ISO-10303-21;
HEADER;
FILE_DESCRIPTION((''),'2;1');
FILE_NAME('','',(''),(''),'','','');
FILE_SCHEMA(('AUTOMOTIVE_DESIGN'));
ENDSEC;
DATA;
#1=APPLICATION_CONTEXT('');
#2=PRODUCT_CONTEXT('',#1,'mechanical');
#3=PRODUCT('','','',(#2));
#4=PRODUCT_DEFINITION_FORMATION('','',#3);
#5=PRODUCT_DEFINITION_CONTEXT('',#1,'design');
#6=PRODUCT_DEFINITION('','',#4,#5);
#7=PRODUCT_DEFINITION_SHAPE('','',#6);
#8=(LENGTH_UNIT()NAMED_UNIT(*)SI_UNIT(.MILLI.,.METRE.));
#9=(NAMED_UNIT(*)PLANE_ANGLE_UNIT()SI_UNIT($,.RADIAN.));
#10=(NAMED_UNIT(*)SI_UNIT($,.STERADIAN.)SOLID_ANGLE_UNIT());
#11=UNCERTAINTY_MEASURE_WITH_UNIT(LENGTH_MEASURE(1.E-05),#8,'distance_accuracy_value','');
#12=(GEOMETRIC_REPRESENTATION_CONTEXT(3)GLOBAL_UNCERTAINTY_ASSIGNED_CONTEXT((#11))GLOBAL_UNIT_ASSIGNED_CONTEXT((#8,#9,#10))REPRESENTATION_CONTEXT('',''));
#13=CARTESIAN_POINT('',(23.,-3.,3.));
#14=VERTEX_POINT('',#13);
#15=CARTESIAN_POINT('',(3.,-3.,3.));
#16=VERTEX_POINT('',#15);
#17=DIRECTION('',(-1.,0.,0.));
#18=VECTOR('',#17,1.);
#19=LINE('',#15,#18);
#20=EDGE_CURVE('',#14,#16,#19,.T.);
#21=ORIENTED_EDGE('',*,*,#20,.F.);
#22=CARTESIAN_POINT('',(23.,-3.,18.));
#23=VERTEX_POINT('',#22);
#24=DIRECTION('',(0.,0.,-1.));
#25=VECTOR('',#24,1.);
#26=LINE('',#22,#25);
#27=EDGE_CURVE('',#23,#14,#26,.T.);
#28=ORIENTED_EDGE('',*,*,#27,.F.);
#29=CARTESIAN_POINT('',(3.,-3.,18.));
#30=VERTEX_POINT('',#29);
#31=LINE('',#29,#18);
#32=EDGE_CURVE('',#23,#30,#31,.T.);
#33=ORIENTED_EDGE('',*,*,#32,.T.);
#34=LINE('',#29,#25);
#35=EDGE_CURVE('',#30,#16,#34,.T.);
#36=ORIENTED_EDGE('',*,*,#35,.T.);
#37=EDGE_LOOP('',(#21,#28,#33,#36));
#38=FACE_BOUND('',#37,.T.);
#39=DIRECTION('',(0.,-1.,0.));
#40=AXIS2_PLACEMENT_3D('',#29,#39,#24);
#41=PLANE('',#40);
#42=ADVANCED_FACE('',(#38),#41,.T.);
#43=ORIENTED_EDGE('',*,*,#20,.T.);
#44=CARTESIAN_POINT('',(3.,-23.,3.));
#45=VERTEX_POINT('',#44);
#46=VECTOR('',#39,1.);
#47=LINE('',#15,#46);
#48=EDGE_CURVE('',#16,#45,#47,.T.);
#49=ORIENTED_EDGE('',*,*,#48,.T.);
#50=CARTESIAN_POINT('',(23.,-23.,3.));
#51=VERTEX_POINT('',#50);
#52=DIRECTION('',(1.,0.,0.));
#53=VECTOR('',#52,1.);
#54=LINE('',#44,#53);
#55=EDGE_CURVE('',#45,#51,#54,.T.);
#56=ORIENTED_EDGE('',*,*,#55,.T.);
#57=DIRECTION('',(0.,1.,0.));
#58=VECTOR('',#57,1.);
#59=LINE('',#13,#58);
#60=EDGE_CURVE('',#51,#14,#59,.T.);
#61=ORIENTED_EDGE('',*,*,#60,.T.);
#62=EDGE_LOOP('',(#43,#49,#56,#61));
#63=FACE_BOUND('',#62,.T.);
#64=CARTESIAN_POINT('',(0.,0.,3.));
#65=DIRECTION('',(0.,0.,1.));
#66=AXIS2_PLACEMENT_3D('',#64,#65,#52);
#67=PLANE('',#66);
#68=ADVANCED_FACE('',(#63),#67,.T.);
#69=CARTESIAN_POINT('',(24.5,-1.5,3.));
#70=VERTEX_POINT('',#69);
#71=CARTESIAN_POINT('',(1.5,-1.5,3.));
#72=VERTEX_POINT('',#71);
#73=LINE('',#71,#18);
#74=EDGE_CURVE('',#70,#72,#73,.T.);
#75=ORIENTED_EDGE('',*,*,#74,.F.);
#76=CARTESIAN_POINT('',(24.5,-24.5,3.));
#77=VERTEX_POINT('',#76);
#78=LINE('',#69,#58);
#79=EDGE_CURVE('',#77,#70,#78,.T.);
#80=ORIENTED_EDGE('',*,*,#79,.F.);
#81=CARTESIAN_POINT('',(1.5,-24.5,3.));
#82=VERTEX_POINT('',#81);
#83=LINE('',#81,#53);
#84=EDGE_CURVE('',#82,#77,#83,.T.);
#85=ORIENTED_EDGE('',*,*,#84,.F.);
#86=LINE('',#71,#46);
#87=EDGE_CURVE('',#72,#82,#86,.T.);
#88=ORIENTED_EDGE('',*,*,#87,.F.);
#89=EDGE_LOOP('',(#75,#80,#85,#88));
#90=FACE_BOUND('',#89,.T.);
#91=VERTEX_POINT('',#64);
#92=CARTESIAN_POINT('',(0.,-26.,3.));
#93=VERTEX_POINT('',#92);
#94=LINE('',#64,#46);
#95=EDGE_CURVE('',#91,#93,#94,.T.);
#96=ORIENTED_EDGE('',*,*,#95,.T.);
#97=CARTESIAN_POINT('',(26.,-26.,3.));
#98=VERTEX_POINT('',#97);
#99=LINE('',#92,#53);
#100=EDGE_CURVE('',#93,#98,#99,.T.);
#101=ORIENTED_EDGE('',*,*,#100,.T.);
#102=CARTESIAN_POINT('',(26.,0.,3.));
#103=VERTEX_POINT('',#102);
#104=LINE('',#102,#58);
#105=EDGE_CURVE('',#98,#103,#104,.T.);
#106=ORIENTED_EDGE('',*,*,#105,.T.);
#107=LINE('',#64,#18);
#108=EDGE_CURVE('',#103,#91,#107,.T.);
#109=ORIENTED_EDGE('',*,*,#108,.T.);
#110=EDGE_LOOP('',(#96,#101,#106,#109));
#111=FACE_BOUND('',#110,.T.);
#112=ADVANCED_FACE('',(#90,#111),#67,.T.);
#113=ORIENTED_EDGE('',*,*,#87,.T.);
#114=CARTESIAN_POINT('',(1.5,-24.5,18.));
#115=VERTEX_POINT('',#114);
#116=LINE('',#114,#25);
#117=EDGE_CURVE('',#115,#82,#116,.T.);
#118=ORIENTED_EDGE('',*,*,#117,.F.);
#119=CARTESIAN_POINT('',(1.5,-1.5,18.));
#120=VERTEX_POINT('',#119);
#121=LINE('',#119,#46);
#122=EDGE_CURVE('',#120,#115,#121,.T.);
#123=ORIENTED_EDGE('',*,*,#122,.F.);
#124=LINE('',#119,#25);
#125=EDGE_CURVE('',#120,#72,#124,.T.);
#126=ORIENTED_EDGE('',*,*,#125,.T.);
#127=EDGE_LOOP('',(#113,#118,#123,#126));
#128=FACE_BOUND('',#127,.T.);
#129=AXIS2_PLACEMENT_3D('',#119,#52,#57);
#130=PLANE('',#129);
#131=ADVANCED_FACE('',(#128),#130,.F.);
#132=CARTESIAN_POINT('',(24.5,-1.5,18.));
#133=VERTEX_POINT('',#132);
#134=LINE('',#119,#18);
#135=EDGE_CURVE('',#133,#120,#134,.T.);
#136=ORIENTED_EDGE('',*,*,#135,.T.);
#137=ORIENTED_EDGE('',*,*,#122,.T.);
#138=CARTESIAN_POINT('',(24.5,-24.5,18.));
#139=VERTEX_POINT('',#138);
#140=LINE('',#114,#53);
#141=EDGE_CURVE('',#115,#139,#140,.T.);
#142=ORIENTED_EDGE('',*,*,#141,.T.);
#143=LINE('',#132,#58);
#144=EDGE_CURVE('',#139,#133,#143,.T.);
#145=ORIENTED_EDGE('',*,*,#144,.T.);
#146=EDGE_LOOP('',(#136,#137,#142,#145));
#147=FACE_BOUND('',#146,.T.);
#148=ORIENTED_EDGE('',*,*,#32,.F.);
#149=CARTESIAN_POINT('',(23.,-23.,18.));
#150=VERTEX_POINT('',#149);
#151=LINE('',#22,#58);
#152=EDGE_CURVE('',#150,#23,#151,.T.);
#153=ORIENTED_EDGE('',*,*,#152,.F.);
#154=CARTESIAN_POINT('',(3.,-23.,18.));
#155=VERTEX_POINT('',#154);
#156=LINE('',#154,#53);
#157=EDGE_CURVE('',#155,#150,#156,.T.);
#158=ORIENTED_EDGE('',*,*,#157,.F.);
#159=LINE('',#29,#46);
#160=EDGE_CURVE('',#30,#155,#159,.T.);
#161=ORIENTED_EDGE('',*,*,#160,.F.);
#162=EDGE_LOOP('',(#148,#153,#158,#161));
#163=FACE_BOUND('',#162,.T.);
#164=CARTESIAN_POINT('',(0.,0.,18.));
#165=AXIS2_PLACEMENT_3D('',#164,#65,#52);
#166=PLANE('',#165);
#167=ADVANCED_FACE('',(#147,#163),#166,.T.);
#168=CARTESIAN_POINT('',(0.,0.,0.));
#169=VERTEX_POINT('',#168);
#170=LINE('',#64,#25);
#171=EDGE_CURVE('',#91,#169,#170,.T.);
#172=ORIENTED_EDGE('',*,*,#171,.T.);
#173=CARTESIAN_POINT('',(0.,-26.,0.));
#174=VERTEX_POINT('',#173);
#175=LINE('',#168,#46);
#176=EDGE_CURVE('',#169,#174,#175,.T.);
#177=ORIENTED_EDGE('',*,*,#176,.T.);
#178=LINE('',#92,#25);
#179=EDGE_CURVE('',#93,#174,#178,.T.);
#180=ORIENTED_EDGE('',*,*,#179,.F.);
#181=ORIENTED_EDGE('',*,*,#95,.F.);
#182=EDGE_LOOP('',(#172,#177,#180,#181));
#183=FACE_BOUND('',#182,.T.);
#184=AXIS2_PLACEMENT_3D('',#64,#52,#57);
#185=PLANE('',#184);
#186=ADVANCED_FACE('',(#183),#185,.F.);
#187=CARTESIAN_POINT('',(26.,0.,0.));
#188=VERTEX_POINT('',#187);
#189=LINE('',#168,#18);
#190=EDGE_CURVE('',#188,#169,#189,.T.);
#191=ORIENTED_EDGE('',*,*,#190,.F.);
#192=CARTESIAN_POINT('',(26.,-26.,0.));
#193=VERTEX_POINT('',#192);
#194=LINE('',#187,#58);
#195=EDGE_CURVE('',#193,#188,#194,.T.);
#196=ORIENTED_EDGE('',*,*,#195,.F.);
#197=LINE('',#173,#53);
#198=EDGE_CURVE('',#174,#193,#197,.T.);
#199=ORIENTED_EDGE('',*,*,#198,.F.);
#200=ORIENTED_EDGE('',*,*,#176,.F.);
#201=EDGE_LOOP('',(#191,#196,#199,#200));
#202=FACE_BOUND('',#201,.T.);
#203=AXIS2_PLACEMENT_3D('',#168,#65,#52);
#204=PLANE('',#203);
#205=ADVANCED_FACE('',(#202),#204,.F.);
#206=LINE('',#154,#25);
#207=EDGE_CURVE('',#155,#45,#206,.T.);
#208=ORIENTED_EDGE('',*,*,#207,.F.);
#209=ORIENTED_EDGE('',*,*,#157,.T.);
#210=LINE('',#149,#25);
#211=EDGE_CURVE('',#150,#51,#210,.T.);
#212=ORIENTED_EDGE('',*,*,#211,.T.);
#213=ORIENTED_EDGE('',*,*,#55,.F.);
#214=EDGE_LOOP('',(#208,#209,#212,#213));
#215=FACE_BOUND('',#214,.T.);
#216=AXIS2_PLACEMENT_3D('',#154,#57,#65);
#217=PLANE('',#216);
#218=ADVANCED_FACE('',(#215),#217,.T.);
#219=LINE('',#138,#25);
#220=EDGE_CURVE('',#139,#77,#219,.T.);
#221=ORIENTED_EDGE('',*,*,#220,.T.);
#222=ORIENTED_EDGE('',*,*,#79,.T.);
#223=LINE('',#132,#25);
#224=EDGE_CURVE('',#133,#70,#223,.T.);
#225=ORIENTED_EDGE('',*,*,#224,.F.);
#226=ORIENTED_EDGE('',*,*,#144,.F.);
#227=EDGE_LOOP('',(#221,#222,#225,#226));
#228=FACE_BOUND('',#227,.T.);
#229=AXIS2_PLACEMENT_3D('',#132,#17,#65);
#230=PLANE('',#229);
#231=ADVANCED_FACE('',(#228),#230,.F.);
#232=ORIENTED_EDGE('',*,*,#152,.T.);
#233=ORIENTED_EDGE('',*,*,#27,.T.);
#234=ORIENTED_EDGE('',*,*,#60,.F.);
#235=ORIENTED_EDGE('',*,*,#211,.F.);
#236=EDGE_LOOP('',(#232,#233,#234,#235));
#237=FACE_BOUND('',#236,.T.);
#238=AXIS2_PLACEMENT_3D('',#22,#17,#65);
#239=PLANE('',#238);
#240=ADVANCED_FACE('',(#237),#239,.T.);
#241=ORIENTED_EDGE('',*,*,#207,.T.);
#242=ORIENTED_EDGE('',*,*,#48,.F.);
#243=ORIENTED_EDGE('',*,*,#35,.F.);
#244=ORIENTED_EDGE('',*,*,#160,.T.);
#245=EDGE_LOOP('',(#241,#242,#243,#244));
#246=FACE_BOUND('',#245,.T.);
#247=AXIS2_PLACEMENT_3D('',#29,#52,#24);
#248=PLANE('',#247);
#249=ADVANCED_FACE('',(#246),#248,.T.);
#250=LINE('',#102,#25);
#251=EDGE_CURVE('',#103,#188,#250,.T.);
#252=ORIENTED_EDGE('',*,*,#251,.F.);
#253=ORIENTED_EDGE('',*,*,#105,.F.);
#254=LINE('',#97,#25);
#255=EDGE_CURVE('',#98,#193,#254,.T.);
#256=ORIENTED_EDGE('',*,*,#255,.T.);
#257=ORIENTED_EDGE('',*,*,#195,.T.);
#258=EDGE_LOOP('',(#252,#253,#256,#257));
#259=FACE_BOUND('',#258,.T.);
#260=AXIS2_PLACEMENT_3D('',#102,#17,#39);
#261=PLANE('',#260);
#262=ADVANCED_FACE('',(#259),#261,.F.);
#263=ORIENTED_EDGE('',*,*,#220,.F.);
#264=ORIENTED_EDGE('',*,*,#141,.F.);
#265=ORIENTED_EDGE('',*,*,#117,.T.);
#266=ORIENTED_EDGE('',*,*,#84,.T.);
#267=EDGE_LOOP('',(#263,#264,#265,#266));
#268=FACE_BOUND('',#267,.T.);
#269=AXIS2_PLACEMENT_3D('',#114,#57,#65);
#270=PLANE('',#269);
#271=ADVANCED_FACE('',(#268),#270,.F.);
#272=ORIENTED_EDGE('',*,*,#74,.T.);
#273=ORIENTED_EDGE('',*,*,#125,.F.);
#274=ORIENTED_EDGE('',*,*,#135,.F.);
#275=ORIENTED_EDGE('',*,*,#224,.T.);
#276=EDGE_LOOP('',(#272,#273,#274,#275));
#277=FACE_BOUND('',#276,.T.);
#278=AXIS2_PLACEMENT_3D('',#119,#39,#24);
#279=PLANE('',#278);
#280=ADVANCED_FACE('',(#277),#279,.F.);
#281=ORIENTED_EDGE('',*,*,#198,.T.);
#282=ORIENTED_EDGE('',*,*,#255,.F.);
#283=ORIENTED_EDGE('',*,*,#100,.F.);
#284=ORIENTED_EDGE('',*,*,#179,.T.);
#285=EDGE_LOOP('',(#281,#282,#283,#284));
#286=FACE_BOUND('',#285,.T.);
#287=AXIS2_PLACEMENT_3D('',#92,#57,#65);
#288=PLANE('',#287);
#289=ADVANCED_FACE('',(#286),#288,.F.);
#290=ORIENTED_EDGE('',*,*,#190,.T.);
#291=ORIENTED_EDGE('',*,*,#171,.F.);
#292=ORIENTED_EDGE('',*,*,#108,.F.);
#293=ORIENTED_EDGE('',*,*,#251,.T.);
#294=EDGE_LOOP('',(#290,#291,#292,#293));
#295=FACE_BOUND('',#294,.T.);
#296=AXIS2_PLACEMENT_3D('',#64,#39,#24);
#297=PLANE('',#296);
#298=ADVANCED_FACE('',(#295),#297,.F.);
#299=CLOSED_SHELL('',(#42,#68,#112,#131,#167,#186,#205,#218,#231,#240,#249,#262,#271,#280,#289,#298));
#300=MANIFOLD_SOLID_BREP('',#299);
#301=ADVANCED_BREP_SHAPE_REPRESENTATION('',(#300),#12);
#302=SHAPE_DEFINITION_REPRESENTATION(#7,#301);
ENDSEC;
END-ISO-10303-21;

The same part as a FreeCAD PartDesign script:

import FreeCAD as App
import Part
import Sketcher

doc = App.newDocument("Part")
body = doc.addObject("PartDesign::Body", "Body")

# Sketch on XY plane
sketch1 = body.newObject("Sketcher::SketchObject", "Sketch")
sketch1.AttachmentSupport = (doc.getObject("XY_Plane"), [""])
sketch1.MapMode = "FlatFace"
sketch1.addGeometry([
    Part.LineSegment(App.Vector(0, 0, 0), App.Vector(0, -26, 0)),
    Part.LineSegment(App.Vector(0, -26, 0), App.Vector(26, -26, 0)),
    Part.LineSegment(App.Vector(26, -26, 0), App.Vector(26, 0, 0)),
    Part.LineSegment(App.Vector(26, 0, 0), App.Vector(0, 0, 0)),
], False)
sketch1.addConstraint([
    Sketcher.Constraint("Coincident", 0, 2, 1, 1),
    Sketcher.Constraint("Coincident", 1, 2, 2, 1),
    Sketcher.Constraint("Coincident", 2, 2, 3, 1),
    Sketcher.Constraint("Coincident", 3, 2, 0, 1),
    Sketcher.Constraint("Vertical", 0),
    Sketcher.Constraint("Horizontal", 1),
    Sketcher.Constraint("Vertical", 2),
    Sketcher.Constraint("Horizontal", 3),
    Sketcher.Constraint("Coincident", 3, 2, -1, 1),
    Sketcher.Constraint("Equal", 3, 0),
    Sketcher.Constraint("DistanceX", 1, 1, 1, 2, 26.0),
])
pad1 = body.newObject("PartDesign::Pad", "Pad")
pad1.Profile = sketch1
pad1.Length = 3

# Sketch on XY plane
sketch2 = body.newObject("Sketcher::SketchObject", "Sketch001")
sketch2.AttachmentSupport = (doc.getObject("XY_Plane"), [""])
sketch2.MapMode = "FlatFace"
sketch2.AttachmentOffset = App.Placement(App.Vector(0, 0, 3), App.Rotation())
sketch2.addGeometry([
    Part.LineSegment(App.Vector(1.5, -1.5, 0), App.Vector(1.5, -24.5, 0)),  # 0
    Part.LineSegment(App.Vector(1.5, -24.5, 0), App.Vector(24.5, -24.5, 0)),  # 1
    Part.LineSegment(App.Vector(24.5, -24.5, 0), App.Vector(24.5, -1.5, 0)),  # 2
    Part.LineSegment(App.Vector(24.5, -1.5, 0), App.Vector(1.5, -1.5, 0)),  # 3
    Part.LineSegment(App.Vector(23, -23, 0), App.Vector(3, -23, 0)),  # 4
    Part.LineSegment(App.Vector(3, -23, 0), App.Vector(3, -3, 0)),  # 5
    Part.LineSegment(App.Vector(3, -3, 0), App.Vector(23, -3, 0)),  # 6
    Part.LineSegment(App.Vector(23, -3, 0), App.Vector(23, -23, 0)),  # 7
], False)
sketch2.addConstraint([
    Sketcher.Constraint("Coincident", 0, 2, 1, 1),
    Sketcher.Constraint("Coincident", 1, 2, 2, 1),
    Sketcher.Constraint("Coincident", 2, 2, 3, 1),
    Sketcher.Constraint("Coincident", 3, 2, 0, 1),
    Sketcher.Constraint("Coincident", 4, 2, 5, 1),
    Sketcher.Constraint("Coincident", 5, 2, 6, 1),
    Sketcher.Constraint("Coincident", 6, 2, 7, 1),
    Sketcher.Constraint("Coincident", 7, 2, 4, 1),
    Sketcher.Constraint("Vertical", 0),
    Sketcher.Constraint("Horizontal", 1),
    Sketcher.Constraint("Vertical", 2),
    Sketcher.Constraint("Horizontal", 3),
    Sketcher.Constraint("Horizontal", 4),
    Sketcher.Constraint("Vertical", 5),
    Sketcher.Constraint("Horizontal", 6),
    Sketcher.Constraint("Vertical", 7),
    Sketcher.Constraint("Equal", 3, 0),
    Sketcher.Constraint("Equal", 6, 5),
    Sketcher.Constraint("DistanceX", 1, 1, 1, 2, 23.0),
    Sketcher.Constraint("DistanceX", 4, 2, 4, 1, 20.0),
    Sketcher.Constraint("DistanceX", -1, 1, 4, 2, 3.0),
    Sketcher.Constraint("DistanceY", 4, 2, -1, 1, 23.0),
    Sketcher.Constraint("DistanceX", -1, 1, 0, 2, 1.5),
    Sketcher.Constraint("DistanceY", 0, 2, -1, 1, 24.5),
])
pad2 = body.newObject("PartDesign::Pad", "Pad001")
pad2.Profile = sketch2
pad2.Length = 15

doc.recompute()
